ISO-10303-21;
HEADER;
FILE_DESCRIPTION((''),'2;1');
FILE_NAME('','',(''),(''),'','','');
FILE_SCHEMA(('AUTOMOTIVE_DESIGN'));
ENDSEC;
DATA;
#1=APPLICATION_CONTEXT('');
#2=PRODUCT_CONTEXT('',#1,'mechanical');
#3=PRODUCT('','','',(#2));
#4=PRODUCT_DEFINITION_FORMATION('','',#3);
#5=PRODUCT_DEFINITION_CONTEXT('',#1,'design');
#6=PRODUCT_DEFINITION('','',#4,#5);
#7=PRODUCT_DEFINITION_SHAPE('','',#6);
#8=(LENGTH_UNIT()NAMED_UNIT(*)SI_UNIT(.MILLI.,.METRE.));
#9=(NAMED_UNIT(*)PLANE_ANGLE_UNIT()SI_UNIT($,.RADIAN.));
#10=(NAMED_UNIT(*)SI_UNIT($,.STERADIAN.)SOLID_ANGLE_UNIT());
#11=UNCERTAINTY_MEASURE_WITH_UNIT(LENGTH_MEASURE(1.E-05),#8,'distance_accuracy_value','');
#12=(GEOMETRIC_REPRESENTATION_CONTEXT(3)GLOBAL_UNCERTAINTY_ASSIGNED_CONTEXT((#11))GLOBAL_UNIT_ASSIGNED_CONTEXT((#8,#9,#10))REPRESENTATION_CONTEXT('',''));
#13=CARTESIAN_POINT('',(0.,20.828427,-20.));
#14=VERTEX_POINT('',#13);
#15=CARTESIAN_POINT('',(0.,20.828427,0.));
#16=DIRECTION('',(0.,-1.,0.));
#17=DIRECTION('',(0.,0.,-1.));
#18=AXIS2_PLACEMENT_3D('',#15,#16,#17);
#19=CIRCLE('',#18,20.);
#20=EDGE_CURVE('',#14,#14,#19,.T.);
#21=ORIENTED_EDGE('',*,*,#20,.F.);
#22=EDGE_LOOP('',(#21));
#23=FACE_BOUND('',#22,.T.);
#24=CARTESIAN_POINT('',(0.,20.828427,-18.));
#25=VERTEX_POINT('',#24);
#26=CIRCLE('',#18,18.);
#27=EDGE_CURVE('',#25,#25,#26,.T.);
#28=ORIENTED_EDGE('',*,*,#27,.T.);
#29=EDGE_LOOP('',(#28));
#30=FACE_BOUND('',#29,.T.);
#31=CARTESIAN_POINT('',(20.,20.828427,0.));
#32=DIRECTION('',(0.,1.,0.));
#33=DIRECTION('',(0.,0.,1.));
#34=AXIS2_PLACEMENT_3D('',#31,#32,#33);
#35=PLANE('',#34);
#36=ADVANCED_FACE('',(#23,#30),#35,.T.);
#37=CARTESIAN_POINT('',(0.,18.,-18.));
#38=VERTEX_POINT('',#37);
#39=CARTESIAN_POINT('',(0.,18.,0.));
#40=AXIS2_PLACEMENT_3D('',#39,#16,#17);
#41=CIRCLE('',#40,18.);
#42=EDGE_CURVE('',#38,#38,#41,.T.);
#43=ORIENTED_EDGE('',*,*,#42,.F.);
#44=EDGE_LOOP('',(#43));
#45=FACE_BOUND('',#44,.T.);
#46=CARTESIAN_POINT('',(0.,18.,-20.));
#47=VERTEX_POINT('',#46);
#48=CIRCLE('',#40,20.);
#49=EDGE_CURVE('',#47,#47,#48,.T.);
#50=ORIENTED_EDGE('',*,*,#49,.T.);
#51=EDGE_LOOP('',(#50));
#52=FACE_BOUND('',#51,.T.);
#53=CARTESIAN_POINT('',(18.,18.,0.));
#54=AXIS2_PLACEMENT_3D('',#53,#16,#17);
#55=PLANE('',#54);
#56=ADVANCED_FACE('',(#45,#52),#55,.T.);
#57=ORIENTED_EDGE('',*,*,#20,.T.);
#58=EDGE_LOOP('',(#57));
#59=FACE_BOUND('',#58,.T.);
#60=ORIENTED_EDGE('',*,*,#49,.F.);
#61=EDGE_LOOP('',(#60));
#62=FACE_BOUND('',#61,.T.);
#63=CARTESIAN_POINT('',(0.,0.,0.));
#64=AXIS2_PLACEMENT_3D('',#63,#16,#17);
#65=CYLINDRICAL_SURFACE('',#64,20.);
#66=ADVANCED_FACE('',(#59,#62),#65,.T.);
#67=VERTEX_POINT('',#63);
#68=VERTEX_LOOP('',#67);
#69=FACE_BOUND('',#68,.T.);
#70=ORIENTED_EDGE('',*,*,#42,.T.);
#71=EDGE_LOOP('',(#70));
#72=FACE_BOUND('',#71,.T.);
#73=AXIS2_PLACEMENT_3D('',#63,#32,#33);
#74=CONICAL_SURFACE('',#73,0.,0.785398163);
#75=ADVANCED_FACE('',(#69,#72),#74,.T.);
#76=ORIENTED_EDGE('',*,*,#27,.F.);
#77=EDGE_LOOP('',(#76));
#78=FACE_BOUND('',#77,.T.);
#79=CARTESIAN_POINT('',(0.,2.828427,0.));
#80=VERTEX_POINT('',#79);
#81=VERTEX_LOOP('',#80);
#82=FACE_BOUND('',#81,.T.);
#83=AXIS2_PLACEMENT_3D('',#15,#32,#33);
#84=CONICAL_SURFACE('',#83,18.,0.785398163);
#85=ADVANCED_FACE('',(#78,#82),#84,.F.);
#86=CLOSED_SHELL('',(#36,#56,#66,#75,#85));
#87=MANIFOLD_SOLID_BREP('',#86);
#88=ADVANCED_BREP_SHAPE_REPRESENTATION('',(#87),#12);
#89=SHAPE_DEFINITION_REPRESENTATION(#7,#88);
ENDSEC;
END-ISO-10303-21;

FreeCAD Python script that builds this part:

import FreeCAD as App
import Part
import Sketcher
Q = App.Units.Quantity

doc = App.newDocument("Part")
params = doc.addObject("Spreadsheet::Sheet", "Params")
for row, (alias, value) in enumerate([
    ("sketch1_width", "2 mm"),
    ("revolution_angle", "360 deg"),
], start=1):
    params.set(f"A{row}", alias)
    params.set(f"B{row}", "=" + value)
    params.setAlias(f"B{row}", alias)

body = doc.addObject("PartDesign::Body", "Body")

# Sketch on XY plane
sketch1 = body.newObject("Sketcher::SketchObject", "Sketch")
sketch1.AttachmentSupport = (doc.getObject("XY_Plane"), [""])
sketch1.MapMode = "FlatFace"
sketch1.addGeometry([
    Part.LineSegment(App.Vector(0, 0, 0), App.Vector(18, 18, 0)),  # 0
    Part.LineSegment(App.Vector(18, 18, 0), App.Vector(20, 18, 0)),  # 1
    Part.LineSegment(App.Vector(20, 18, 0), App.Vector(20, 20.8, 0)),  # 2
    Part.LineSegment(App.Vector(20, 20.8, 0), App.Vector(18, 20.8, 0)),  # 3
    Part.LineSegment(App.Vector(18, 20.8, 0), App.Vector(0, 2.8, 0)),  # 4
    Part.LineSegment(App.Vector(0, 2.8, 0), App.Vector(0, 0, 0)),  # 5
], False)
sketch1.addConstraint([
    Sketcher.Constraint("Coincident", 0, 2, 1, 1),
    Sketcher.Constraint("Coincident", 1, 2, 2, 1),
    Sketcher.Constraint("Coincident", 2, 2, 3, 1),
    Sketcher.Constraint("Coincident", 3, 2, 4, 1),
    Sketcher.Constraint("Coincident", 4, 2, 5, 1),
    Sketcher.Constraint("Coincident", 5, 2, 0, 1),
    Sketcher.Constraint("Horizontal", 1),
    Sketcher.Constraint("Vertical", 2),
    Sketcher.Constraint("Horizontal", 3),
    Sketcher.Constraint("Vertical", 5),
    Sketcher.Constraint("Coincident", 5, 2, -1, 1),
    Sketcher.Constraint("Parallel", 0, 4),
    Sketcher.Constraint("Vertical", 0, 2, 3, 2),
    Sketcher.Constraint("DistanceX", 1, 1, 1, 2, 2.0),
    Sketcher.Constraint("Angle", 0, Q("45 deg")),
    Sketcher.Constraint("DistanceX", -1, 1, 0, 2, 18.0),
    Sketcher.Constraint("DistanceY", 2, 1, 2, 2, 2.828427),
])
sketch1.setExpression("Constraints[13]", "Params.sketch1_width")
revolution = body.newObject("PartDesign::Revolution", "Revolution")
revolution.Profile = sketch1
revolution.ReferenceAxis = (sketch1, ["V_Axis"])
revolution.setExpression("Angle", "Params.revolution_angle")

doc.recompute()
